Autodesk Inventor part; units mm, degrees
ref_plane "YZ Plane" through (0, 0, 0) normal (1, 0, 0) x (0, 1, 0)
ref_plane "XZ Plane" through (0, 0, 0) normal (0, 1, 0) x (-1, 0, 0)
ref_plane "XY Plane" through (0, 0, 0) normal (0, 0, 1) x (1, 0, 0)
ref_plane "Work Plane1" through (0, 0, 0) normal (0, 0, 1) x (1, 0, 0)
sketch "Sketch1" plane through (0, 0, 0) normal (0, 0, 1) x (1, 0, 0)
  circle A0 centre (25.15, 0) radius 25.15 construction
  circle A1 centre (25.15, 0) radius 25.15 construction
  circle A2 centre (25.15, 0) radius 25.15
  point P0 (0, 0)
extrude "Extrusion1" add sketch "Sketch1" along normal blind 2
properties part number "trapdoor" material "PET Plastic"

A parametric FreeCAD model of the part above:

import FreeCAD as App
import Part
import Sketcher
from FreeCAD import Vector

doc = App.newDocument("Part")
params = doc.addObject("Spreadsheet::Sheet", "Params")
for row, (alias, value) in enumerate([
    ("sketch1_diameter", "50.3 mm"),
    ("pad1_length", "2 mm"),
], start=1):
    params.set(f"A{row}", alias)
    params.set(f"B{row}", "=" + value)
    params.setAlias(f"B{row}", alias)

body = doc.addObject("PartDesign::Body", "Body")

# Sketch on XY plane
sketch1 = body.newObject("Sketcher::SketchObject", "Sketch")
sketch1.AttachmentSupport = (doc.getObject("XY_Plane"), [""])
sketch1.MapMode = "FlatFace"
sketch1.addGeometry(Part.Circle(Vector(25.15, 0, 0), Vector(0, 0, 1), 25.15), False)
sketch1.addConstraint([
    Sketcher.Constraint("PointOnObject", 0, 3, -1),
    Sketcher.Constraint("Diameter", 0, 50.3),
    Sketcher.Constraint("DistanceX", -1, 1, 0, 3, 25.15),
])
sketch1.setExpression("Constraints[1]", "Params.sketch1_diameter")
pad1 = body.newObject("PartDesign::Pad", "Pad")
pad1.Profile = sketch1
pad1.setExpression("Length", "Params.pad1_length")

doc.recompute()
